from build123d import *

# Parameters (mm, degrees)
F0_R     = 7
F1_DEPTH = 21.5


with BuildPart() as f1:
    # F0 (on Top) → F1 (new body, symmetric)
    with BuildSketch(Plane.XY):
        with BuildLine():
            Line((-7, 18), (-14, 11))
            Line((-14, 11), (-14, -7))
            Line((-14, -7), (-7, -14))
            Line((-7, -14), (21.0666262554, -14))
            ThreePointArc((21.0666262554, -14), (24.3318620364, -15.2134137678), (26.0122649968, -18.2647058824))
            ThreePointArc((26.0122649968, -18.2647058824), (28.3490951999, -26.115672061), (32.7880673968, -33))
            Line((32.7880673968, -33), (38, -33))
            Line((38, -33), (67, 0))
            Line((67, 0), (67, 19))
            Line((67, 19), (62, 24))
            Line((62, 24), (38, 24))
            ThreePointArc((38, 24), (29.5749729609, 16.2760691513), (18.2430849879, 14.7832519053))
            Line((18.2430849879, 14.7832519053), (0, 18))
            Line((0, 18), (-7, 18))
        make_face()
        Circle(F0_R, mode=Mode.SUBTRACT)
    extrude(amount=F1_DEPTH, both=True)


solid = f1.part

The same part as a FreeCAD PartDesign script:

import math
import FreeCAD as App
import Part
import Sketcher
from FreeCAD import Vector
Q = App.Units.Quantity

doc = App.newDocument("Part")
body = doc.addObject("PartDesign::Body", "Body")

sketch1 = doc.addObject("Sketcher::SketchObject", "Sketch")
body.addObject(sketch1)
sketch1.AttachmentSupport = (doc.XY_Plane, [""])
sketch1.MapMode = "FlatFace"
sketch1.addGeometry([
    Part.LineSegment(Vector(-7, 18, 0), Vector(-14, 11, 0)),
    Part.LineSegment(Vector(-14, 11, 0), Vector(-14, -7, 0)),
    Part.LineSegment(Vector(-14, -7, 0), Vector(-7, -14, 0)),
    Part.LineSegment(Vector(-7, -14, 0), Vector(21.066626, -14, 0)),
    Part.ArcOfCircle(Part.Circle(Vector(21.066626, -19, 0), Vector(0, 0, 1), 5), math.radians(8.456519), math.radians(90)),
    Part.ArcOfCircle(Part.Circle(Vector(54.69697, -14, 0), Vector(0, 0, 1), 29), math.radians(-171.543481), math.radians(-139.067275)),
    Part.LineSegment(Vector(32.788067, -33, 0), Vector(38, -33, 0)),
    Part.LineSegment(Vector(38, -33, 0), Vector(67, 0, 0)),
    Part.LineSegment(Vector(67, 0, 0), Vector(67, 19, 0)),
    Part.LineSegment(Vector(67, 19, 0), Vector(62, 24, 0)),
    Part.LineSegment(Vector(62, 24, 0), Vector(38, 24, 0)),
    Part.ArcOfCircle(Part.Circle(Vector(21.5424, 33.494599, 0), Vector(0, 0, 1), 19), math.radians(-100), math.radians(-29.981196)),
    Part.LineSegment(Vector(18.243085, 14.783252, 0), Vector(0, 18, 0)),
    Part.LineSegment(Vector(0, 18, 0), Vector(-7, 18, 0)),
    Part.Circle(Vector(0, 0, 0), Vector(0, 0, 1), 7),
], False)
sketch1.addConstraint([
    Sketcher.Constraint("Coincident", 0, 2, 1, 1),
    Sketcher.Constraint("Coincident", 1, 2, 2, 1),
    Sketcher.Constraint("Coincident", 2, 2, 3, 1),
    Sketcher.Constraint("Tangent", 3, 2, 4, 2),
    Sketcher.Constraint("Tangent", 4, 1, 5, 1),
    Sketcher.Constraint("Coincident", 5, 2, 6, 1),
    Sketcher.Constraint("Coincident", 6, 2, 7, 1),
    Sketcher.Constraint("Coincident", 7, 2, 8, 1),
    Sketcher.Constraint("Coincident", 8, 2, 9, 1),
    Sketcher.Constraint("Coincident", 9, 2, 10, 1),
    Sketcher.Constraint("Coincident", 10, 2, 11, 2),
    Sketcher.Constraint("Tangent", 11, 1, 12, 1),
    Sketcher.Constraint("Coincident", 12, 2, 13, 1),
    Sketcher.Constraint("Coincident", 13, 2, 0, 1),
    Sketcher.Constraint("Vertical", 1),
    Sketcher.Constraint("Horizontal", 3),
    Sketcher.Constraint("Horizontal", 6),
    Sketcher.Constraint("Vertical", 8),
    Sketcher.Constraint("Horizontal", 10),
    Sketcher.Constraint("Horizontal", 13),
    Sketcher.Constraint("Coincident", 14, 3, -1, 1),
    Sketcher.Constraint("PointOnObject", 7, 2, -1),
    Sketcher.Constraint("PointOnObject", 12, 2, -2),
    Sketcher.Constraint("Perpendicular", 0, 2),
    Sketcher.Constraint("Parallel", 2, 9),
    Sketcher.Constraint("Horizontal", 5, 3, 2, 2),
    Sketcher.Constraint("Vertical", 6, 2, 10, 2),
    Sketcher.Constraint("Vertical", 2, 2, 13, 2),
    Sketcher.Constraint("Equal", 0, 2),
    Sketcher.Constraint("Diameter", 14, Q("14 mm")),
    Sketcher.Constraint("Radius", 4, Q("5 mm")),
    Sketcher.Constraint("Radius", 5, Q("29 mm")),
    Sketcher.Constraint("Radius", 11, Q("19 mm")),
    Sketcher.Constraint("DistanceX", 10, 2, 10, 1, Q("24 mm")),
    Sketcher.Constraint("DistanceX", 13, 2, 13, 1, Q("7 mm")),
    Sketcher.Constraint("DistanceY", 1, 2, 1, 1, Q("18 mm")),
    Sketcher.Constraint("DistanceY", 8, 1, 8, 2, Q("19 mm")),
    Sketcher.Constraint("Angle", 12, Q("170 deg")),
    Sketcher.Constraint("DistanceY", 4, 3, -1, 1, Q("19 mm")),
    Sketcher.Constraint("DistanceX", 0, 2, -1, 1, Q("14 mm")),
    Sketcher.Constraint("DistanceY", 5, 2, -1, 1, Q("33 mm")),
    Sketcher.Constraint("DistanceX", -1, 1, 6, 2, Q("38 mm")),
    Sketcher.Constraint("DistanceX", -1, 1, 7, 2, Q("67 mm")),
    Sketcher.Constraint("DistanceX", 3, 1, 3, 2, Q("28.066626 mm")),
])
pad1 = doc.addObject("PartDesign::Pad", "Pad")
body.addObject(pad1)
pad1.Profile = sketch1
pad1.Length = 43
pad1.Midplane = True

doc.recompute()
